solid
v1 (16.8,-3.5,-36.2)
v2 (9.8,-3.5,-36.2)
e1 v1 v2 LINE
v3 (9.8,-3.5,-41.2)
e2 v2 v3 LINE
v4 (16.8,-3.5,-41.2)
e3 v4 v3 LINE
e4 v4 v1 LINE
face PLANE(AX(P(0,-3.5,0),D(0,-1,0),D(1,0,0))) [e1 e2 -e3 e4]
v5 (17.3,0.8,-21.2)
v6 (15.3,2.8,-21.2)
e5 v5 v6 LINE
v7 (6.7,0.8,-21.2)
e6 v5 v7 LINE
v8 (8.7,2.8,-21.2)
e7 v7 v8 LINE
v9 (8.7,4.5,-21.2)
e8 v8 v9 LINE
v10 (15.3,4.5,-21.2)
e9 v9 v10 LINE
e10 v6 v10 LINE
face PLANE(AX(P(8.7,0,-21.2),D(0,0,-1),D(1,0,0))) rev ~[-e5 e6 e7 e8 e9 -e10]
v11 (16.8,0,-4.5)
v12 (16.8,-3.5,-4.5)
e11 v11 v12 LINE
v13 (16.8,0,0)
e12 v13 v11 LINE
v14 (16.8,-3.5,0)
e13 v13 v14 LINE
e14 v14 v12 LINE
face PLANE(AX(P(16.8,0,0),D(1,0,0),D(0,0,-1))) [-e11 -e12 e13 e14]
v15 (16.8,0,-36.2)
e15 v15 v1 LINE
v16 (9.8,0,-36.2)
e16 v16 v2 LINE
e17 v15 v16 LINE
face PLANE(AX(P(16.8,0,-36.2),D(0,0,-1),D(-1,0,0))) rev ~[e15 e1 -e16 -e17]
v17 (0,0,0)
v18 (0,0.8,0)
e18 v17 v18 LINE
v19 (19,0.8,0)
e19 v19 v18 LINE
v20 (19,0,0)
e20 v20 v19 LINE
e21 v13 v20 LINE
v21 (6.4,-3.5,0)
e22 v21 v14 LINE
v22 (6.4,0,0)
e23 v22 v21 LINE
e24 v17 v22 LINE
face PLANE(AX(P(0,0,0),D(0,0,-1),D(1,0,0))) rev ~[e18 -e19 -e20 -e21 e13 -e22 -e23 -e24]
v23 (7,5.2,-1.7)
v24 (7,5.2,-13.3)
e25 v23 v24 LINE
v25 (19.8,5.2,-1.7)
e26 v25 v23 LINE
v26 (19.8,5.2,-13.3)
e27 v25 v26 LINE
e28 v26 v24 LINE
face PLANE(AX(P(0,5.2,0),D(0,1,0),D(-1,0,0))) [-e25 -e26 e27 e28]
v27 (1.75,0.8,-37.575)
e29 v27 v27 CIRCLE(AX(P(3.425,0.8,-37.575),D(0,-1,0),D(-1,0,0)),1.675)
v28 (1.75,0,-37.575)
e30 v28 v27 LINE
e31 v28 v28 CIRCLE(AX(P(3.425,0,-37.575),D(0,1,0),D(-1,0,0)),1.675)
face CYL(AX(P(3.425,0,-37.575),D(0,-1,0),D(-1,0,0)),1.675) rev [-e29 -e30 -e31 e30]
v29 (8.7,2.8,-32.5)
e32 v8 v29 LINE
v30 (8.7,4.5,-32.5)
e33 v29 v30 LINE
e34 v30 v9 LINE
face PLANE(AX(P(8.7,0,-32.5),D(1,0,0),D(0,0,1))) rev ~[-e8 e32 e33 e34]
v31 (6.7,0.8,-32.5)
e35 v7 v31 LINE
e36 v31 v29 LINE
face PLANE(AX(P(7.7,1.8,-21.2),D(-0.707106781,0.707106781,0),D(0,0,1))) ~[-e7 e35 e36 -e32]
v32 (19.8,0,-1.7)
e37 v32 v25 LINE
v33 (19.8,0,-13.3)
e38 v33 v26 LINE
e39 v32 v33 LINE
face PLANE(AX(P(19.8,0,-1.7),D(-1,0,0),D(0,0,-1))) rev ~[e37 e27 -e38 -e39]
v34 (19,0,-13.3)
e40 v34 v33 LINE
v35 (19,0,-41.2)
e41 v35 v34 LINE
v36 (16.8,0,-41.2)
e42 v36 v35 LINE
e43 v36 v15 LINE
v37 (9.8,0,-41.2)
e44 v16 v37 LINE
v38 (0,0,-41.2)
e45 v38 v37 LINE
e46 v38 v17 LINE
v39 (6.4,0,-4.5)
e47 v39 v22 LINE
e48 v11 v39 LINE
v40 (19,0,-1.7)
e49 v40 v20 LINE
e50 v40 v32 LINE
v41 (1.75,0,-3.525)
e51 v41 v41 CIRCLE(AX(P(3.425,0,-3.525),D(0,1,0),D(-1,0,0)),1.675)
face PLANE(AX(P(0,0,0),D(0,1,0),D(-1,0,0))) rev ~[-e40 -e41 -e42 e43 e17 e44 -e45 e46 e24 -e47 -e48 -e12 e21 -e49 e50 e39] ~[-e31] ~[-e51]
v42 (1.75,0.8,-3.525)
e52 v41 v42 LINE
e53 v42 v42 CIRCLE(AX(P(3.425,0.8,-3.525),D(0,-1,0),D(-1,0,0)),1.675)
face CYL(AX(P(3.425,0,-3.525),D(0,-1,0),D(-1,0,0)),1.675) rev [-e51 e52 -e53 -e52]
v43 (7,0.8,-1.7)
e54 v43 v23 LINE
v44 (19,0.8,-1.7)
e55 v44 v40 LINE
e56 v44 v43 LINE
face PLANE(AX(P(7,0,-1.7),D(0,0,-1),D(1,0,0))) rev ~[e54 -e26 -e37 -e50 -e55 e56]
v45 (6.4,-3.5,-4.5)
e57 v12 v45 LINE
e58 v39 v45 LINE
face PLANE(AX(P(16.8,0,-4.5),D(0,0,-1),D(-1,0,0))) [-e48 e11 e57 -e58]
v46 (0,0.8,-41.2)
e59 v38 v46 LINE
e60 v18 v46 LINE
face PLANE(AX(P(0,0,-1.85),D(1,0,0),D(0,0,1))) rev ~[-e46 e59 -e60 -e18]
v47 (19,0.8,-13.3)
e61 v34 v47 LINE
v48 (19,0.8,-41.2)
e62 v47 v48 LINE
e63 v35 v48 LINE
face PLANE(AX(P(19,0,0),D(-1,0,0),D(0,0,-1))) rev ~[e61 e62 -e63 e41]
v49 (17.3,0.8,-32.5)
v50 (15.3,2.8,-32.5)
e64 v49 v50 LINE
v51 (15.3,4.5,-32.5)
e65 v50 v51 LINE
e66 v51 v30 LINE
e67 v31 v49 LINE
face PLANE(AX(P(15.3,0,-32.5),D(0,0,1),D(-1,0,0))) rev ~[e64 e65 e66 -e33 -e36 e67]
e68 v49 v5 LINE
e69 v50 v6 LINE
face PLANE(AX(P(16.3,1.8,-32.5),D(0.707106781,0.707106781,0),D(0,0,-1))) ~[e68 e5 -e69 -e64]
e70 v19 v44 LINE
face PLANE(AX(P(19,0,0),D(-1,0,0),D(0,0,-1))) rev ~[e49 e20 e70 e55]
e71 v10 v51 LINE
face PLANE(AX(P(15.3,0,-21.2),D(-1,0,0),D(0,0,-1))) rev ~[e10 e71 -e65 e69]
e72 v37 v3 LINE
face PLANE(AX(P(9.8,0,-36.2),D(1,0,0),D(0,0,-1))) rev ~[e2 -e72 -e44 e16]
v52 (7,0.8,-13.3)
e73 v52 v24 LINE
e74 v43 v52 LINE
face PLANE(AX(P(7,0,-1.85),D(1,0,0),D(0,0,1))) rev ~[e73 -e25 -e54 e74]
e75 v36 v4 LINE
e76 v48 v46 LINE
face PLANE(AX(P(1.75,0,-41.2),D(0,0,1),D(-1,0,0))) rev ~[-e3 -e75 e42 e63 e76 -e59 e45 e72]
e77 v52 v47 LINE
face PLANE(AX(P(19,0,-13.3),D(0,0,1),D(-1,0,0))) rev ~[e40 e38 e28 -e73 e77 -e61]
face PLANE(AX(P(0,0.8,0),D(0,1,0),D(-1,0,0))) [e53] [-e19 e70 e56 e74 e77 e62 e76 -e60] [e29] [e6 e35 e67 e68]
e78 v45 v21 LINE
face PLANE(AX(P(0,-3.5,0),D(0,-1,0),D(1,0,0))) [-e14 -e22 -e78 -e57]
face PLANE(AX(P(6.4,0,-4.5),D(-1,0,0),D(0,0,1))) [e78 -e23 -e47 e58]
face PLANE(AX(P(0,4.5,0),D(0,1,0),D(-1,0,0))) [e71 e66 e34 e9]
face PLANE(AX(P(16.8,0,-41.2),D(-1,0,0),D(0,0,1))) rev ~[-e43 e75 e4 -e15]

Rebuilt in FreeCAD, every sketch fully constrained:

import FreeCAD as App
import Part
import Sketcher


def edges_at(feature, points):
    """Names of the edges that pass closest to the given points."""
    edges = feature.Shape.Edges
    near = lambda p: min(range(len(edges)), key=lambda i: edges[i].distToShape(Part.Vertex(*p))[0])
    return sorted({f"Edge{near(p) + 1}" for p in points})


def add_polygon(sketch, points):
    """Adds a closed chain of lines whose ends are joined by coincident constraints."""
    first, n = sketch.GeometryCount, len(points)
    for a, b in zip(points, points[1:] + points[:1]):
        sketch.addGeometry(Part.LineSegment(App.Vector(*a, 0), App.Vector(*b, 0)), False)
    for i in range(n):
        sketch.addConstraint(Sketcher.Constraint("Coincident", first + i, 2, first + (i + 1) % n, 1))

doc = App.newDocument("Part")
body = doc.addObject("PartDesign::Body", "Body")

# Sketch on XZ plane
sketch1 = doc.addObject("Sketcher::SketchObject", "Sketch")
body.addObject(sketch1)
sketch1.AttachmentSupport = (doc.XZ_Plane, [""])
sketch1.MapMode = "FlatFace"
add_polygon(sketch1, [(0, 0), (19, 0), (19, -41.2), (0, -41.2)])  # lines 0-3
sketch1.addGeometry(Part.Circle(App.Vector(3.425, -37.575, 0), App.Vector(0, 0, 1), 1.675), False)  # 4
sketch1.addGeometry(Part.Circle(App.Vector(3.425, -3.525, 0), App.Vector(0, 0, 1), 1.675), False)  # 5
sketch1.addConstraint([
    Sketcher.Constraint("Horizontal", 0),
    Sketcher.Constraint("Vertical", 1),
    Sketcher.Constraint("Horizontal", 2),
    Sketcher.Constraint("Vertical", 3),
    Sketcher.Constraint("Coincident", 3, 2, -1, 1),
    Sketcher.Constraint("Equal", 4, 5),
    Sketcher.Constraint("Vertical", 4, 3, 5, 3),
    Sketcher.Constraint("Diameter", 4, 3.35),
    Sketcher.Constraint("DistanceX", 0, 1, 0, 2, 19.0),
    Sketcher.Constraint("DistanceY", 1, 2, 1, 1, 41.2),
    Sketcher.Constraint("DistanceY", 4, 3, 5, 3, 34.05),
    Sketcher.Constraint("DistanceX", -1, 1, 4, 3, 3.425),
    Sketcher.Constraint("DistanceY", 4, 3, -1, 1, 37.575),
])
pad1 = doc.addObject("PartDesign::Pad", "Pad")
body.addObject(pad1)
pad1.Profile = sketch1
pad1.Length = 0.8
pad1.Reversed = True

# Sketch on XZ plane
sketch2 = doc.addObject("Sketcher::SketchObject", "Sketch001")
body.addObject(sketch2)
sketch2.AttachmentSupport = (doc.XZ_Plane, [""])
sketch2.MapMode = "FlatFace"
add_polygon(sketch2, [(7, -1.7), (19.8, -1.7), (19.8, -13.3), (7, -13.3)])  # lines 0-3
sketch2.addConstraint([
    Sketcher.Constraint("Horizontal", 0),
    Sketcher.Constraint("Vertical", 1),
    Sketcher.Constraint("Horizontal", 2),
    Sketcher.Constraint("Vertical", 3),
    Sketcher.Constraint("DistanceX", 0, 1, 0, 2, 12.8),
    Sketcher.Constraint("DistanceY", 1, 2, 1, 1, 11.6),
    Sketcher.Constraint("DistanceX", -1, 1, 2, 2, 7.0),
    Sketcher.Constraint("DistanceY", 0, 2, -1, 1, 1.7),
])
pad2 = doc.addObject("PartDesign::Pad", "Pad001")
body.addObject(pad2)
pad2.Profile = sketch2
pad2.Length = 5.2
pad2.Reversed = True

# Sketch on XZ plane
sketch3 = doc.addObject("Sketcher::SketchObject", "Sketch002")
body.addObject(sketch3)
sketch3.AttachmentSupport = (doc.XZ_Plane, [""])
sketch3.MapMode = "FlatFace"
add_polygon(sketch3, [(8.7, -32.5), (8.7, -21.2), (15.3, -21.2), (15.3, -32.5)])  # lines 0-3
sketch3.addConstraint([
    Sketcher.Constraint("Vertical", 0),
    Sketcher.Constraint("Horizontal", 1),
    Sketcher.Constraint("Vertical", 2),
    Sketcher.Constraint("Horizontal", 3),
    Sketcher.Constraint("DistanceX", 1, 1, 1, 2, 6.6),
    Sketcher.Constraint("DistanceY", 0, 1, 0, 2, 11.3),
    Sketcher.Constraint("DistanceX", -1, 1, 0, 2, 8.7),
    Sketcher.Constraint("DistanceY", 0, 2, -1, 1, 21.2),
])
pad3 = doc.addObject("PartDesign::Pad", "Pad002")
body.addObject(pad3)
pad3.Profile = sketch3
pad3.Length = 4.5
pad3.Reversed = True
doc.recompute()

chamfer = doc.addObject("PartDesign::Chamfer", "Chamfer")
body.addObject(chamfer)
chamfer.Base = (pad3, edges_at(pad3, [(15.3, 0.8, -26.85), (8.7, 0.8, -26.85)]))
chamfer.Size = 2

# Sketch on XZ plane
sketch4 = doc.addObject("Sketcher::SketchObject", "Sketch003")
body.addObject(sketch4)
sketch4.AttachmentSupport = (doc.XZ_Plane, [""])
sketch4.MapMode = "FlatFace"
add_polygon(sketch4, [(16.8, -4.5), (16.8, 0), (6.4, 0), (6.4, -4.5)])  # lines 0-3
add_polygon(sketch4, [(9.8, -41.2), (16.8, -41.2), (16.8, -36.2), (9.8, -36.2)])  # lines 4-7
sketch4.addConstraint([
    Sketcher.Constraint("Vertical", 0),
    Sketcher.Constraint("Horizontal", 1),
    Sketcher.Constraint("Vertical", 2),
    Sketcher.Constraint("Horizontal", 3),
    Sketcher.Constraint("Horizontal", 4),
    Sketcher.Constraint("Vertical", 5),
    Sketcher.Constraint("Horizontal", 6),
    Sketcher.Constraint("Vertical", 7),
    Sketcher.Constraint("PointOnObject", 0, 2, -1),
    Sketcher.Constraint("Vertical", 3, 2, 4, 2),
    Sketcher.Constraint("DistanceX", 4, 1, 4, 2, 7.0),
    Sketcher.Constraint("DistanceY", 5, 1, 5, 2, 5.0),
    Sketcher.Constraint("DistanceX", 1, 2, 1, 1, 10.4),
    Sketcher.Constraint("DistanceY", 0, 1, 0, 2, 4.5),
    Sketcher.Constraint("DistanceX", -1, 1, 1, 2, 6.4),
    Sketcher.Constraint("DistanceY", 4, 2, -1, 1, 41.2),
])
pad4 = doc.addObject("PartDesign::Pad", "Pad003")
body.addObject(pad4)
pad4.Profile = sketch4
pad4.Length = 3.5

doc.recompute()
